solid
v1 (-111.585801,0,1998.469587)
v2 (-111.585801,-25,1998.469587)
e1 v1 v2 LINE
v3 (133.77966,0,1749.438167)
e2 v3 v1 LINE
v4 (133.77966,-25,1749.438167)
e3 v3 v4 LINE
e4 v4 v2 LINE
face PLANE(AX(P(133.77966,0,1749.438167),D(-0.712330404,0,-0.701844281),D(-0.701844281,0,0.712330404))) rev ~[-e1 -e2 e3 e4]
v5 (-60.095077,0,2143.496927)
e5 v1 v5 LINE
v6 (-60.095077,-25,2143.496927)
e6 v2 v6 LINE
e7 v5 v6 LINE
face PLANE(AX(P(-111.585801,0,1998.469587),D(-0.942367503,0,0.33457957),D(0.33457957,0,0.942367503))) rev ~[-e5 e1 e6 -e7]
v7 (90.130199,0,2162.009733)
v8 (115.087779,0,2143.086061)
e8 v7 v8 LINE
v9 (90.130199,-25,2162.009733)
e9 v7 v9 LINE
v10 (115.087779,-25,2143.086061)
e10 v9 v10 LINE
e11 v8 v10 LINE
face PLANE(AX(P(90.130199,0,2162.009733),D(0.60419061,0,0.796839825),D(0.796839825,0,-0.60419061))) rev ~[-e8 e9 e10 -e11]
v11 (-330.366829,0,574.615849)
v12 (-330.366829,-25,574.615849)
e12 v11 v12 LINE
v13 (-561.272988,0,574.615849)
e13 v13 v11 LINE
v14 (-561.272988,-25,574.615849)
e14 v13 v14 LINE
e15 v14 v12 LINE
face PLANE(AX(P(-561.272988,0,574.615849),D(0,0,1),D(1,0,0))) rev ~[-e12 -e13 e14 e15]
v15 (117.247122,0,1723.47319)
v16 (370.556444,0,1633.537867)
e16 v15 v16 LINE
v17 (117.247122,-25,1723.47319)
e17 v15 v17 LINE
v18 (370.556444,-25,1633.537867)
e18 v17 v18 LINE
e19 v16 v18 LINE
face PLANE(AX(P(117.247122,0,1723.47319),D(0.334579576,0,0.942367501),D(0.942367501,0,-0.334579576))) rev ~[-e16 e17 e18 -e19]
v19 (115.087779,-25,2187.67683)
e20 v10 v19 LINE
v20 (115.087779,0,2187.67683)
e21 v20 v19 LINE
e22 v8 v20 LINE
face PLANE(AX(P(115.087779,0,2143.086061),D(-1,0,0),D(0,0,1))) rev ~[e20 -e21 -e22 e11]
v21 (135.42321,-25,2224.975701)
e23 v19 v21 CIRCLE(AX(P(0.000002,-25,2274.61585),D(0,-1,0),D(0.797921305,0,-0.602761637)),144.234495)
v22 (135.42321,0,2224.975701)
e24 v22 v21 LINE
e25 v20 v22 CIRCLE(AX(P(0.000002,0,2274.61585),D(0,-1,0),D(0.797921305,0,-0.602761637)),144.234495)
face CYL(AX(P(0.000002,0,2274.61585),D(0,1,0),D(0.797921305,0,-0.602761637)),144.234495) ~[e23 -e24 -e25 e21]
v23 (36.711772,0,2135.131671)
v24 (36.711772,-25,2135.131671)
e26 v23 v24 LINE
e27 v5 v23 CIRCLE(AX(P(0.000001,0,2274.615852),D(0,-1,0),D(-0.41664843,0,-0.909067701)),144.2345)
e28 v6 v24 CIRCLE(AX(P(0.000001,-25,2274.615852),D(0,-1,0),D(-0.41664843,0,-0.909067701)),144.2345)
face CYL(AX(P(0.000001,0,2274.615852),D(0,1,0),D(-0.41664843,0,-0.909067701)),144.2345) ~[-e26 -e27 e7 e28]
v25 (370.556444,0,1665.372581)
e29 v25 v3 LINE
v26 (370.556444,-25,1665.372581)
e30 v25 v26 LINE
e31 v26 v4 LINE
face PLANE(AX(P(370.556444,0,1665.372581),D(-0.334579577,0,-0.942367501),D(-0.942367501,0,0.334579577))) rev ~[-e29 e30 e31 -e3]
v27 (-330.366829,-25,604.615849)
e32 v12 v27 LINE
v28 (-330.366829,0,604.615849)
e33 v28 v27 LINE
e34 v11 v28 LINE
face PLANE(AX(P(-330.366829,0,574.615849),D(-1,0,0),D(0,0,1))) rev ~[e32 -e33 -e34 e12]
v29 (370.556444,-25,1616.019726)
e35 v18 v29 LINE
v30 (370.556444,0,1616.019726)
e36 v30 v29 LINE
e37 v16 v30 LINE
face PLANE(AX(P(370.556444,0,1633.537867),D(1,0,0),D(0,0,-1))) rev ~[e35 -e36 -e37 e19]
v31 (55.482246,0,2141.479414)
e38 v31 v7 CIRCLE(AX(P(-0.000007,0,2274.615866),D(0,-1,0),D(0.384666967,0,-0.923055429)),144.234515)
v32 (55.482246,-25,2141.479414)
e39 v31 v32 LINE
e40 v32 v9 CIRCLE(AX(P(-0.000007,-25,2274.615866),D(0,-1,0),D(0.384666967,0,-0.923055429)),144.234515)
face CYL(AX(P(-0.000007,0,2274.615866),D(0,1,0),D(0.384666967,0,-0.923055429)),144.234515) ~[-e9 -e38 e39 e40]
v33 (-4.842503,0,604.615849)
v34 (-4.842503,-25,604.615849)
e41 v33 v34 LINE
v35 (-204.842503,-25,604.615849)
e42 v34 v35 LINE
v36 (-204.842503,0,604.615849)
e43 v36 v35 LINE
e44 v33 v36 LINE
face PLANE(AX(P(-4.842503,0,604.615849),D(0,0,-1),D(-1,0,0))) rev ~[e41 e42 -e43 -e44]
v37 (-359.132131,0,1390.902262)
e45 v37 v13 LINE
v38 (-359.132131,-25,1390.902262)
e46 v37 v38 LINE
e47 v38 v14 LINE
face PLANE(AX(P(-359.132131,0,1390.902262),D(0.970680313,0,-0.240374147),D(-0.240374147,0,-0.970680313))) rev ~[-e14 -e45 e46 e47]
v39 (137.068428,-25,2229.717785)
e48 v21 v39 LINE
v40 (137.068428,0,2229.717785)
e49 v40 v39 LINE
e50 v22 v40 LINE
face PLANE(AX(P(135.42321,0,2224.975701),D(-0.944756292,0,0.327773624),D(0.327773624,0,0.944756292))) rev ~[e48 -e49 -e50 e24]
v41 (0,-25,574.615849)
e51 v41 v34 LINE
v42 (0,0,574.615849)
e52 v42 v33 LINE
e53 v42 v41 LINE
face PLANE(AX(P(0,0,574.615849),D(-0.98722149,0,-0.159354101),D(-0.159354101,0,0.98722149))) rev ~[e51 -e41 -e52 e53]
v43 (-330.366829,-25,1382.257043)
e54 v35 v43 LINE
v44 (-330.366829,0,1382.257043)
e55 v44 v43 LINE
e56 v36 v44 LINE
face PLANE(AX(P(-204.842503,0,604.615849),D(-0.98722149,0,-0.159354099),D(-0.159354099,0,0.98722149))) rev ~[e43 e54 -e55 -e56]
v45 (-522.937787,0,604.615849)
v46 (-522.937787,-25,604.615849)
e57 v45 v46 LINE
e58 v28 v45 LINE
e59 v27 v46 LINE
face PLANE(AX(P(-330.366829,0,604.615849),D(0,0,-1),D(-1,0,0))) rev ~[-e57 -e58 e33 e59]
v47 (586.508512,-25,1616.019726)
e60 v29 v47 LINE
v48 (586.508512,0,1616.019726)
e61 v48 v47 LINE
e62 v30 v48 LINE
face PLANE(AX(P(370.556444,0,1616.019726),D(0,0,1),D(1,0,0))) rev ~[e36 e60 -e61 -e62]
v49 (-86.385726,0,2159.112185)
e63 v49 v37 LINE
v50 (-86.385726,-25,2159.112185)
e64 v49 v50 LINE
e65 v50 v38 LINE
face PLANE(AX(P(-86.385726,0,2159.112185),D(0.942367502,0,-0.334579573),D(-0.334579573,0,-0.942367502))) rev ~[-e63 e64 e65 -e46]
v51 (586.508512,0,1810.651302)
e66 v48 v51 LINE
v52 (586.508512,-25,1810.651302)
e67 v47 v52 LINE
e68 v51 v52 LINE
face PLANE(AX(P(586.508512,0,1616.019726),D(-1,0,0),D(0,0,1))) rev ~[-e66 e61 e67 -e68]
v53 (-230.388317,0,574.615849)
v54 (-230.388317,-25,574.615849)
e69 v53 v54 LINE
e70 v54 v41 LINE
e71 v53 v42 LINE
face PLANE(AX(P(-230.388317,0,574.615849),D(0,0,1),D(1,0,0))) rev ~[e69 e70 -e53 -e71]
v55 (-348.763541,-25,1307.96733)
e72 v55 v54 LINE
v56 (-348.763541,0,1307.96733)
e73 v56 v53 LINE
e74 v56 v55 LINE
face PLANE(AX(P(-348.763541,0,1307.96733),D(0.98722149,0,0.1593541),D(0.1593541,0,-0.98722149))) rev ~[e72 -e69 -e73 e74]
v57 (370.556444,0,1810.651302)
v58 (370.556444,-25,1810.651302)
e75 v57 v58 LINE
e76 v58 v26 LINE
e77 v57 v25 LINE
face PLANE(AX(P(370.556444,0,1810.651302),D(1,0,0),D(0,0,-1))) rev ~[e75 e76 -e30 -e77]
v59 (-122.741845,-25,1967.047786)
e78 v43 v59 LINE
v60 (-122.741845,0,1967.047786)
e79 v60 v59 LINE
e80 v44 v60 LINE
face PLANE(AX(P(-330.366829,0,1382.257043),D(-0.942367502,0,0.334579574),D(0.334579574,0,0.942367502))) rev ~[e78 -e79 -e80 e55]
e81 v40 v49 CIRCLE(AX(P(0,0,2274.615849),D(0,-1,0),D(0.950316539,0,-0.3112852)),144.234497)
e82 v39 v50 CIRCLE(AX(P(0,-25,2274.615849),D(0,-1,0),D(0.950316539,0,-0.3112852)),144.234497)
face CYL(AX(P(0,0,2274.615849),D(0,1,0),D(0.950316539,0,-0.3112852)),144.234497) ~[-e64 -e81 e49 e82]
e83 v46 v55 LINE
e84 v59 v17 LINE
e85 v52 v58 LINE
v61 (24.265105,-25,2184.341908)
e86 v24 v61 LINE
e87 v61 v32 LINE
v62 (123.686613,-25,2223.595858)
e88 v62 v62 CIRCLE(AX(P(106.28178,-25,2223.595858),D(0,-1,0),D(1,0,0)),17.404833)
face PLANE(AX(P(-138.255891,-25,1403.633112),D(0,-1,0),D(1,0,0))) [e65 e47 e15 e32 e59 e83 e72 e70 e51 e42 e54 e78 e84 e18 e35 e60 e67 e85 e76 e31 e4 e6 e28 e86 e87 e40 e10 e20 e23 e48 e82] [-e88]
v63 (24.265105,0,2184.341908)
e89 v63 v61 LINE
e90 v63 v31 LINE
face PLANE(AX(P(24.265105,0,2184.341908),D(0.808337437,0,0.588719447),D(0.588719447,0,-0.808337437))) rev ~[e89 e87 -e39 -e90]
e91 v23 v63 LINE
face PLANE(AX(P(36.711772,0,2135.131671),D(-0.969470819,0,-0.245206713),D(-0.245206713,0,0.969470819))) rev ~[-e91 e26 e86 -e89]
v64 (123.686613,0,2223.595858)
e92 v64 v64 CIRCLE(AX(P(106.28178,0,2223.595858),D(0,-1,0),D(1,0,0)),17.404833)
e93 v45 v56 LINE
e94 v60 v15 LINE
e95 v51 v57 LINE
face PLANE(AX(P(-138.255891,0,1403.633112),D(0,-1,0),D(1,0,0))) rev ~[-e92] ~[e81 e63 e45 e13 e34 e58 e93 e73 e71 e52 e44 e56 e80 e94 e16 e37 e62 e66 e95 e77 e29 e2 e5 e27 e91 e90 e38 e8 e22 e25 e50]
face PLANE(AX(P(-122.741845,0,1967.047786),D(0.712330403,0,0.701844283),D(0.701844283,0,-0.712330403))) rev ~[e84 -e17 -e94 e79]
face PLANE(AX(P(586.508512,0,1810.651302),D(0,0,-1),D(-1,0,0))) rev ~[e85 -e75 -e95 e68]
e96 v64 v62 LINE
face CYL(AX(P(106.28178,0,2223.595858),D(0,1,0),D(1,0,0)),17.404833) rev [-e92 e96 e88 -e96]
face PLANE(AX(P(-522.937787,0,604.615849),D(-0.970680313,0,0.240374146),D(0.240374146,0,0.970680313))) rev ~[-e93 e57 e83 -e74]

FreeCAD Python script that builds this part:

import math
import FreeCAD as App
import Part
import Sketcher

V = App.Vector

doc = App.newDocument("Part")
body = doc.addObject("PartDesign::Body", "Body")

sketch1 = body.newObject("Sketcher::SketchObject", "Sketch")
sketch1.AttachmentSupport = (doc.getObject("XZ_Plane"), [""])
sketch1.MapMode = "FlatFace"
sketch1.addGeometry(Part.LineSegment(V(-111.585801, 1998.469587, 0), V(-60.095077, 2143.496927, 0)), False)
sketch1.addGeometry(Part.ArcOfCircle(Part.Circle(V(0.000001, 2274.615852, 0), V(0, 0, 1), 144.2345), math.radians(-114.623169), math.radians(-75.25436)), False)
sketch1.addGeometry(Part.LineSegment(V(36.711772, 2135.131671, 0), V(24.265105, 2184.341908, 0)), False)
sketch1.addGeometry(Part.LineSegment(V(24.265105, 2184.341908, 0), V(55.482246, 2141.479414, 0)), False)
sketch1.addGeometry(Part.ArcOfCircle(Part.Circle(V(-0.000007, 2274.615866, 0), V(0, 0, 1), 144.234515), math.radians(-67.376933), math.radians(-51.32614)), False)
sketch1.addGeometry(Part.LineSegment(V(90.130199, 2162.009733, 0), V(115.087779, 2143.086061, 0)), False)
sketch1.addGeometry(Part.LineSegment(V(115.087779, 2143.086061, 0), V(115.087779, 2187.67683, 0)), False)
sketch1.addGeometry(Part.ArcOfCircle(Part.Circle(V(0.000002, 2274.61585, 0), V(0, 0, 1), 144.234495), math.radians(-37.067942), math.radians(-20.130699)), False)
sketch1.addGeometry(Part.LineSegment(V(135.42321, 2224.975701, 0), V(137.068428, 2229.717785, 0)), False)
sketch1.addGeometry(Part.ArcOfCircle(Part.Circle(V(0, 2274.615849, 0), V(0, 0, 1), 144.234497), math.radians(-18.1367), math.radians(233.207015)), False)
sketch1.addGeometry(Part.LineSegment(V(-86.385726, 2159.112185, 0), V(-359.132131, 1390.902262, 0)), False)
sketch1.addGeometry(Part.LineSegment(V(-359.132131, 1390.902262, 0), V(-561.272988, 574.615849, 0)), False)
sketch1.addGeometry(Part.LineSegment(V(-561.272988, 574.615849, 0), V(-330.366829, 574.615849, 0)), False)
sketch1.addGeometry(Part.LineSegment(V(-330.366829, 574.615849, 0), V(-330.366829, 604.615849, 0)), False)
sketch1.addGeometry(Part.LineSegment(V(-330.366829, 604.615849, 0), V(-522.937787, 604.615849, 0)), False)
sketch1.addGeometry(Part.LineSegment(V(-522.937787, 604.615849, 0), V(-348.763541, 1307.96733, 0)), False)
sketch1.addGeometry(Part.LineSegment(V(-348.763541, 1307.96733, 0), V(-230.388317, 574.615849, 0)), False)
sketch1.addGeometry(Part.LineSegment(V(-230.388317, 574.615849, 0), V(0, 574.615849, 0)), False)
sketch1.addGeometry(Part.LineSegment(V(0, 574.615849, 0), V(-4.842503, 604.615849, 0)), False)
sketch1.addGeometry(Part.LineSegment(V(-4.842503, 604.615849, 0), V(-204.842503, 604.615849, 0)), False)
sketch1.addGeometry(Part.LineSegment(V(-204.842503, 604.615849, 0), V(-330.366829, 1382.257043, 0)), False)
sketch1.addGeometry(Part.LineSegment(V(-330.366829, 1382.257043, 0), V(-122.741845, 1967.047786, 0)), False)
sketch1.addGeometry(Part.LineSegment(V(-122.741845, 1967.047786, 0), V(117.247122, 1723.47319, 0)), False)
sketch1.addGeometry(Part.LineSegment(V(117.247122, 1723.47319, 0), V(370.556444, 1633.537867, 0)), False)
sketch1.addGeometry(Part.LineSegment(V(370.556444, 1633.537867, 0), V(370.556444, 1616.019726, 0)), False)
sketch1.addGeometry(Part.LineSegment(V(370.556444, 1616.019726, 0), V(586.508512, 1616.019726, 0)), False)
sketch1.addGeometry(Part.LineSegment(V(586.508512, 1616.019726, 0), V(586.508512, 1810.651302, 0)), False)
sketch1.addGeometry(Part.LineSegment(V(586.508512, 1810.651302, 0), V(370.556444, 1810.651302, 0)), False)
sketch1.addGeometry(Part.LineSegment(V(370.556444, 1810.651302, 0), V(370.556444, 1665.372581, 0)), False)
sketch1.addGeometry(Part.LineSegment(V(370.556444, 1665.372581, 0), V(133.77966, 1749.438167, 0)), False)
sketch1.addGeometry(Part.LineSegment(V(133.77966, 1749.438167, 0), V(-111.585801, 1998.469587, 0)), False)
sketch1.addGeometry(Part.Circle(V(106.28178, 2223.595858, 0), V(0, 0, 1), 17.404833), False)
sketch1.addConstraint(Sketcher.Constraint("Coincident", 0, 2, 1, 1))
sketch1.addConstraint(Sketcher.Constraint("Coincident", 1, 2, 2, 1))
sketch1.addConstraint(Sketcher.Constraint("Coincident", 2, 2, 3, 1))
sketch1.addConstraint(Sketcher.Constraint("Coincident", 3, 2, 4, 1))
sketch1.addConstraint(Sketcher.Constraint("Coincident", 4, 2, 5, 1))
sketch1.addConstraint(Sketcher.Constraint("Coincident", 5, 2, 6, 1))
sketch1.addConstraint(Sketcher.Constraint("Coincident", 6, 2, 7, 1))
sketch1.addConstraint(Sketcher.Constraint("Coincident", 7, 2, 8, 1))
sketch1.addConstraint(Sketcher.Constraint("Coincident", 8, 2, 9, 1))
sketch1.addConstraint(Sketcher.Constraint("Coincident", 9, 2, 10, 1))
sketch1.addConstraint(Sketcher.Constraint("Coincident", 10, 2, 11, 1))
sketch1.addConstraint(Sketcher.Constraint("Coincident", 11, 2, 12, 1))
sketch1.addConstraint(Sketcher.Constraint("Coincident", 12, 2, 13, 1))
sketch1.addConstraint(Sketcher.Constraint("Coincident", 13, 2, 14, 1))
sketch1.addConstraint(Sketcher.Constraint("Coincident", 14, 2, 15, 1))
sketch1.addConstraint(Sketcher.Constraint("Coincident", 15, 2, 16, 1))
sketch1.addConstraint(Sketcher.Constraint("Coincident", 16, 2, 17, 1))
sketch1.addConstraint(Sketcher.Constraint("Coincident", 17, 2, 18, 1))
sketch1.addConstraint(Sketcher.Constraint("Coincident", 18, 2, 19, 1))
sketch1.addConstraint(Sketcher.Constraint("Coincident", 19, 2, 20, 1))
sketch1.addConstraint(Sketcher.Constraint("Coincident", 20, 2, 21, 1))
sketch1.addConstraint(Sketcher.Constraint("Coincident", 21, 2, 22, 1))
sketch1.addConstraint(Sketcher.Constraint("Coincident", 22, 2, 23, 1))
sketch1.addConstraint(Sketcher.Constraint("Coincident", 23, 2, 24, 1))
sketch1.addConstraint(Sketcher.Constraint("Coincident", 24, 2, 25, 1))
sketch1.addConstraint(Sketcher.Constraint("Coincident", 25, 2, 26, 1))
sketch1.addConstraint(Sketcher.Constraint("Coincident", 26, 2, 27, 1))
sketch1.addConstraint(Sketcher.Constraint("Coincident", 27, 2, 28, 1))
sketch1.addConstraint(Sketcher.Constraint("Coincident", 28, 2, 29, 1))
sketch1.addConstraint(Sketcher.Constraint("Coincident", 29, 2, 30, 1))
sketch1.addConstraint(Sketcher.Constraint("Coincident", 30, 2, 0, 1))
sketch1.addConstraint(Sketcher.Constraint("Vertical", 6))
sketch1.addConstraint(Sketcher.Constraint("Horizontal", 12))
sketch1.addConstraint(Sketcher.Constraint("Vertical", 13))
sketch1.addConstraint(Sketcher.Constraint("Horizontal", 14))
sketch1.addConstraint(Sketcher.Constraint("Horizontal", 17))
sketch1.addConstraint(Sketcher.Constraint("Horizontal", 19))
sketch1.addConstraint(Sketcher.Constraint("Vertical", 24))
sketch1.addConstraint(Sketcher.Constraint("Horizontal", 25))
sketch1.addConstraint(Sketcher.Constraint("Vertical", 26))
sketch1.addConstraint(Sketcher.Constraint("Horizontal", 27))
sketch1.addConstraint(Sketcher.Constraint("Vertical", 28))
sketch1.addConstraint(Sketcher.Constraint("Coincident", 7, 3, 1, 3))
sketch1.addConstraint(Sketcher.Constraint("Coincident", 9, 3, 1, 3))
sketch1.addConstraint(Sketcher.Constraint("PointOnObject", 1, 3, -2))
sketch1.addConstraint(Sketcher.Constraint("PointOnObject", 17, 2, -2))
sketch1.addConstraint(Sketcher.Constraint("DistanceX", 19, 2, 19, 1, 200.0))
sketch1.addConstraint(Sketcher.Constraint("DistanceY", 13, 1, 13, 2, 30.0))
sketch1.addConstraint(Sketcher.Constraint("DistanceY", 16, 2, 13, 2, 30.0))
sketch1.addConstraint(Sketcher.Constraint("DistanceY", 17, 2, 18, 2, 30.0))
sketch1.addConstraint(Sketcher.Constraint("Radius", 1, 144.2345))
sketch1.addConstraint(Sketcher.Constraint("Diameter", 31, 34.809666))
sketch1.addConstraint(Sketcher.Constraint("Radius", 4, 144.234515))
sketch1.addConstraint(Sketcher.Constraint("Radius", 7, 144.234495))
sketch1.addConstraint(Sketcher.Constraint("Radius", 9, 144.234497))
sketch1.addConstraint(Sketcher.Constraint("DistanceX", 31, 3, 5, 2, 8.805999))
sketch1.addConstraint(Sketcher.Constraint("Distance", 5, 31.320699))
sketch1.addConstraint(Sketcher.Constraint("DistanceX", 12, 1, 12, 2, 230.906159))
sketch1.addConstraint(Sketcher.Constraint("DistanceX", 25, 1, 25, 2, 215.952068))
sketch1.addConstraint(Sketcher.Constraint("DistanceX", 27, 2, 27, 1, 215.952068))
sketch1.addConstraint(Sketcher.Constraint("DistanceY", 6, 1, 6, 2, 44.590769))
sketch1.addConstraint(Sketcher.Constraint("DistanceY", 24, 2, 24, 1, 17.518141))
sketch1.addConstraint(Sketcher.Constraint("DistanceY", 28, 2, 28, 1, 145.278721))
sketch1.addConstraint(Sketcher.Constraint("DistanceX", -1, 1, 4, 2, 90.130199))
sketch1.addConstraint(Sketcher.Constraint("DistanceY", -1, 1, 7, 2, 2224.975701))
sketch1.addConstraint(Sketcher.Constraint("DistanceY", -1, 1, 26, 2, 1810.651302))
sketch1.addConstraint(Sketcher.Constraint("DistanceX", 30, 2, -1, 1, 111.585801))
sketch1.addConstraint(Sketcher.Constraint("DistanceX", 9, 2, 1, 2, 123.097498))
sketch1.addConstraint(Sketcher.Constraint("DistanceX", 12, 2, 1, 2, 367.078601))
sketch1.addConstraint(Sketcher.Constraint("DistanceX", 11, 2, 14, 2, 38.335201))
sketch1.addConstraint(Sketcher.Constraint("DistanceY", 21, 2, 9, 2, 192.064399))
sketch1.addConstraint(Sketcher.Constraint("DistanceX", 3, 2, 23, 2, 315.074198))
sketch1.addConstraint(Sketcher.Constraint("DistanceY", 23, 2, 29, 2, 115.9003))
sketch1.addConstraint(Sketcher.Constraint("DistanceY", 21, 2, 30, 2, 31.421801))
sketch1.addConstraint(Sketcher.Constraint("Distance", 15, 724.596421))
sketch1.addConstraint(Sketcher.Constraint("Distance", 16, 742.843919))
sketch1.addConstraint(Sketcher.Constraint("Distance", 21, 620.55487))
sketch1.addConstraint(Sketcher.Constraint("DistanceX", 17, 1, 17, 2, 230.388317))
sketch1.addConstraint(Sketcher.Constraint("DistanceY", 26, 1, 26, 2, 194.631576))
sketch1.addConstraint(Sketcher.Constraint("DistanceY", -1, 1, 7, 3, 2274.61585))
sketch1.addConstraint(Sketcher.Constraint("DistanceX", -1, 1, 31, 3, 106.28178))
sketch1.addConstraint(Sketcher.Constraint("DistanceY", -1, 1, 31, 3, 2223.595858))
sketch1.addConstraint(Sketcher.Constraint("DistanceX", -1, 1, 8, 2, 137.068428))
sketch1.addConstraint(Sketcher.Constraint("DistanceX", 10, 2, -1, 1, 359.132131))
sketch1.addConstraint(Sketcher.Constraint("DistanceY", -1, 1, 10, 2, 1390.902262))
sketch1.addConstraint(Sketcher.Constraint("DistanceX", 11, 2, -1, 1, 561.272988))
sketch1.addConstraint(Sketcher.Constraint("DistanceY", -1, 1, 11, 2, 574.615849))
sketch1.addConstraint(Sketcher.Constraint("DistanceX", 20, 2, -1, 1, 330.366829))
sketch1.addConstraint(Sketcher.Constraint("DistanceY", -1, 1, 22, 2, 1723.47319))
sketch1.addConstraint(Sketcher.Constraint("DistanceX", -1, 1, 25, 2, 586.508512))
sketch1.addConstraint(Sketcher.Constraint("DistanceX", -1, 1, 29, 2, 133.77966))
sketch1.addConstraint(Sketcher.Constraint("DistanceX", 0, 2, 7, 3, 60.095079))
sketch1.addConstraint(Sketcher.Constraint("DistanceX", 0, 2, 4, 3, 60.09507))
sketch1.addConstraint(Sketcher.Constraint("DistanceY", 2, 2, 31, 3, 39.25395))
sketch1.addConstraint(Sketcher.Constraint("DistanceX", 2, 2, 3, 2, 31.217141))
sketch1.addConstraint(Sketcher.Constraint("DistanceY", 20, 2, 10, 2, 8.645219))
sketch1.addConstraint(Sketcher.Constraint("DistanceX", 1, 2, 22, 2, 80.53535))
sketch1.addConstraint(Sketcher.Constraint("Distance", 18, 30.388317))
pad1 = body.newObject("PartDesign::Pad", "Pad")
pad1.Profile = sketch1
pad1.Length = 25

doc.recompute()
